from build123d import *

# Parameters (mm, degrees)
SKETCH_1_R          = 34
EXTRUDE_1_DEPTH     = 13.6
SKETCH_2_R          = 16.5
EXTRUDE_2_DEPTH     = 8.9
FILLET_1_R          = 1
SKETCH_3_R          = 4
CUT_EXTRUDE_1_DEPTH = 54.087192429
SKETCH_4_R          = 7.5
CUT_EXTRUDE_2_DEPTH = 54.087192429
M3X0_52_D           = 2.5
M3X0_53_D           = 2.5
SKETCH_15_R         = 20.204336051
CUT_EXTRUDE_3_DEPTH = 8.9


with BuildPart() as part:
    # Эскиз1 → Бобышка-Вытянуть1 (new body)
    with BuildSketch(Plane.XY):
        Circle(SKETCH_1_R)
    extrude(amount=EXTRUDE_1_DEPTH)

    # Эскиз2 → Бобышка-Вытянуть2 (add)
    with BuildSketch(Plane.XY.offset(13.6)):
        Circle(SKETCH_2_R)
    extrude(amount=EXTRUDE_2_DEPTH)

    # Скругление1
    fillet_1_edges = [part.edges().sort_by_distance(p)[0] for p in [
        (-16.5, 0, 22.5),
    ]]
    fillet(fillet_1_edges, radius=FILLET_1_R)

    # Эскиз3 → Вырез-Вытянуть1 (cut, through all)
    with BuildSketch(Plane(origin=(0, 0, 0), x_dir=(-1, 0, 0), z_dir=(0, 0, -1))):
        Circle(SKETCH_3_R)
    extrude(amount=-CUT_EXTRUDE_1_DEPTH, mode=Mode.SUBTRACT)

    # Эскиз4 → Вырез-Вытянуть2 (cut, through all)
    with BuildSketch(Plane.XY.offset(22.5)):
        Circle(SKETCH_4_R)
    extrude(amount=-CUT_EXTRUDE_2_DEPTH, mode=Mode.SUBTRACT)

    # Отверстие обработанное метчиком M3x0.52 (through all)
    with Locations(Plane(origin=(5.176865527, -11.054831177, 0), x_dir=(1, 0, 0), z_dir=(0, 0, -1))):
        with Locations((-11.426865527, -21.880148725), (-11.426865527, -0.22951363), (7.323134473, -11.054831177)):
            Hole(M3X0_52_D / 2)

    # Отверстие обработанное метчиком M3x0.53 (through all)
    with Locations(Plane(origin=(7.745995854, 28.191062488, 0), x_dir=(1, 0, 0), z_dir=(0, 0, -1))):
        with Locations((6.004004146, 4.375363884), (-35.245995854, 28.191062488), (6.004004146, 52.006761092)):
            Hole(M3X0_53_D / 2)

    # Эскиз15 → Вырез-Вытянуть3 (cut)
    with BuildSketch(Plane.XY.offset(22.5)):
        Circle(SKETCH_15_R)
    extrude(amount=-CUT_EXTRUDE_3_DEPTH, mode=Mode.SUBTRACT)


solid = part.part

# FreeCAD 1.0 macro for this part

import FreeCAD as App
import Part
import Sketcher
Q = App.Units.Quantity


def edges_at(feature, points):
    """Names of the edges that pass closest to the given points."""
    edges = feature.Shape.Edges
    near = lambda p: min(range(len(edges)), key=lambda i: edges[i].distToShape(Part.Vertex(*p))[0])
    return sorted({f"Edge{near(p) + 1}" for p in points})

doc = App.newDocument("Part")
body = doc.addObject("PartDesign::Body", "Body")

sketch1 = doc.addObject("Sketcher::SketchObject", "Sketch")
body.addObject(sketch1)
sketch1.AttachmentSupport = (doc.XY_Plane, [""])
sketch1.MapMode = "FlatFace"
sketch1.addGeometry(Part.Circle(App.Vector(0, 0, 0), App.Vector(0, 0, 1), 34), False)
sketch1.addConstraint([
    Sketcher.Constraint("Coincident", 0, 3, -1, 1),
    Sketcher.Constraint("Diameter", 0, Q("68 mm")),
])
pad1 = doc.addObject("PartDesign::Pad", "Pad")
body.addObject(pad1)
pad1.Profile = sketch1
pad1.Length = 13.6

sketch2 = doc.addObject("Sketcher::SketchObject", "Sketch001")
body.addObject(sketch2)
sketch2.AttachmentSupport = (doc.XY_Plane, [""])
sketch2.MapMode = "FlatFace"
sketch2.AttachmentOffset = App.Placement(App.Vector(0, 0, 13.6), App.Rotation())
sketch2.addGeometry(Part.Circle(App.Vector(0, 0, 0), App.Vector(0, 0, 1), 16), False)
sketch2.addConstraint([
    Sketcher.Constraint("Coincident", 0, 3, -1, 1),
    Sketcher.Constraint("Diameter", 0, Q("33 mm")),
])
pad2 = doc.addObject("PartDesign::Pad", "Pad001")
body.addObject(pad2)
pad2.Profile = sketch2
pad2.Length = 8.9
doc.recompute()

fillet = doc.addObject("PartDesign::Fillet", "Fillet")
body.addObject(fillet)
fillet.Base = (pad2, edges_at(pad2, [(-16.5, 0, 22.5)]))
fillet.Radius = 1

sketch3 = doc.addObject("Sketcher::SketchObject", "Sketch002")
body.addObject(sketch3)
sketch3.AttachmentSupport = (doc.XY_Plane, [""])
sketch3.MapMode = "FlatFace"
sketch3.addGeometry(Part.Circle(App.Vector(0, 0, 0), App.Vector(0, 0, 1), 4), False)
sketch3.addConstraint([
    Sketcher.Constraint("Coincident", 0, 3, -1, 1),
    Sketcher.Constraint("Diameter", 0, Q("8 mm")),
])
pocket1 = doc.addObject("PartDesign::Pocket", "Pocket")
body.addObject(pocket1)
pocket1.Profile = sketch3
pocket1.Type = "ThroughAll"
pocket1.Reversed = True

sketch4 = doc.addObject("Sketcher::SketchObject", "Sketch003")
body.addObject(sketch4)
sketch4.AttachmentSupport = (doc.XY_Plane, [""])
sketch4.MapMode = "FlatFace"
sketch4.AttachmentOffset = App.Placement(App.Vector(0, 0, 22.5), App.Rotation())
sketch4.addGeometry(Part.Circle(App.Vector(0, 0, 0), App.Vector(0, 0, 1), 8), False)
sketch4.addConstraint([
    Sketcher.Constraint("Coincident", 0, 3, -1, 1),
    Sketcher.Constraint("Diameter", 0, Q("15 mm")),
])
pocket2 = doc.addObject("PartDesign::Pocket", "Pocket001")
body.addObject(pocket2)
pocket2.Profile = sketch4
pocket2.Type = "ThroughAll"

sketch5 = doc.addObject("Sketcher::SketchObject", "Sketch004")
body.addObject(sketch5)
sketch5.AttachmentSupport = (doc.XY_Plane, [""])
sketch5.MapMode = "FlatFace"
sketch5.addGeometry([
    Part.Circle(App.Vector(-6.2, 10.8, 0), App.Vector(0, 0, 1), 1.2),
    Part.Circle(App.Vector(-6.2, -10.8, 0), App.Vector(0, 0, 1), 1.2),
    Part.Circle(App.Vector(12.5, 0, 0), App.Vector(0, 0, 1), 1.2),
], False)
sketch5.addConstraint([
    Sketcher.Constraint("Equal", 0, 1),
    Sketcher.Constraint("Equal", 1, 2),
    Sketcher.Constraint("Symmetric", 0, 3, 1, 3, -1),
    Sketcher.Constraint("PointOnObject", 2, 3, -1),
    Sketcher.Constraint("Diameter", 0, Q("2.5 mm")),
    Sketcher.Constraint("DistanceX", -1, 1, 2, 3, Q("12.5 mm")),
    Sketcher.Constraint("DistanceX", 0, 3, -1, 1, Q("6.25 mm")),
    Sketcher.Constraint("DistanceY", -1, 1, 0, 3, Q("10.825318 mm")),
])
doc.recompute()
hole = doc.addObject("PartDesign::Hole", "Hole")
body.addObject(hole)
hole.Profile = sketch5
hole.ThreadType = "None"
hole.Diameter = 2.5
hole.DepthType = "ThroughAll"
hole.Reversed = True

sketch6 = doc.addObject("Sketcher::SketchObject", "Sketch005")
body.addObject(sketch6)
sketch6.AttachmentSupport = (doc.XY_Plane, [""])
sketch6.MapMode = "FlatFace"
sketch6.addGeometry([
    Part.Circle(App.Vector(13.8, 23.8, 0), App.Vector(0, 0, 1), 1.2),
    Part.Circle(App.Vector(-27.5, 0, 0), App.Vector(0, 0, 1), 1.2),
    Part.Circle(App.Vector(13.8, -23.8, 0), App.Vector(0, 0, 1), 1.2),
], False)
sketch6.addConstraint([
    Sketcher.Constraint("Equal", 0, 1),
    Sketcher.Constraint("Equal", 1, 2),
    Sketcher.Constraint("Symmetric", 0, 3, 2, 3, -1),
    Sketcher.Constraint("PointOnObject", 1, 3, -1),
    Sketcher.Constraint("Diameter", 0, Q("2.5 mm")),
    Sketcher.Constraint("DistanceX", 1, 3, -1, 1, Q("27.5 mm")),
    Sketcher.Constraint("DistanceX", -1, 1, 0, 3, Q("13.75 mm")),
    Sketcher.Constraint("DistanceY", -1, 1, 0, 3, Q("23.815699 mm")),
])
doc.recompute()
hole2 = doc.addObject("PartDesign::Hole", "Hole001")
body.addObject(hole2)
hole2.Profile = sketch6
hole2.ThreadType = "None"
hole2.Diameter = 2.5
hole2.DepthType = "ThroughAll"
hole2.Reversed = True

sketch7 = doc.addObject("Sketcher::SketchObject", "Sketch006")
body.addObject(sketch7)
sketch7.AttachmentSupport = (doc.XY_Plane, [""])
sketch7.MapMode = "FlatFace"
sketch7.AttachmentOffset = App.Placement(App.Vector(0, 0, 22.5), App.Rotation())
sketch7.addGeometry(Part.Circle(App.Vector(0, 0, 0), App.Vector(0, 0, 1), 20), False)
sketch7.addConstraint([
    Sketcher.Constraint("Coincident", 0, 3, -1, 1),
    Sketcher.Constraint("Diameter", 0, Q("40.408672 mm")),
])
pocket3 = doc.addObject("PartDesign::Pocket", "Pocket002")
body.addObject(pocket3)
pocket3.Profile = sketch7
pocket3.Length = 8.9

doc.recompute()
